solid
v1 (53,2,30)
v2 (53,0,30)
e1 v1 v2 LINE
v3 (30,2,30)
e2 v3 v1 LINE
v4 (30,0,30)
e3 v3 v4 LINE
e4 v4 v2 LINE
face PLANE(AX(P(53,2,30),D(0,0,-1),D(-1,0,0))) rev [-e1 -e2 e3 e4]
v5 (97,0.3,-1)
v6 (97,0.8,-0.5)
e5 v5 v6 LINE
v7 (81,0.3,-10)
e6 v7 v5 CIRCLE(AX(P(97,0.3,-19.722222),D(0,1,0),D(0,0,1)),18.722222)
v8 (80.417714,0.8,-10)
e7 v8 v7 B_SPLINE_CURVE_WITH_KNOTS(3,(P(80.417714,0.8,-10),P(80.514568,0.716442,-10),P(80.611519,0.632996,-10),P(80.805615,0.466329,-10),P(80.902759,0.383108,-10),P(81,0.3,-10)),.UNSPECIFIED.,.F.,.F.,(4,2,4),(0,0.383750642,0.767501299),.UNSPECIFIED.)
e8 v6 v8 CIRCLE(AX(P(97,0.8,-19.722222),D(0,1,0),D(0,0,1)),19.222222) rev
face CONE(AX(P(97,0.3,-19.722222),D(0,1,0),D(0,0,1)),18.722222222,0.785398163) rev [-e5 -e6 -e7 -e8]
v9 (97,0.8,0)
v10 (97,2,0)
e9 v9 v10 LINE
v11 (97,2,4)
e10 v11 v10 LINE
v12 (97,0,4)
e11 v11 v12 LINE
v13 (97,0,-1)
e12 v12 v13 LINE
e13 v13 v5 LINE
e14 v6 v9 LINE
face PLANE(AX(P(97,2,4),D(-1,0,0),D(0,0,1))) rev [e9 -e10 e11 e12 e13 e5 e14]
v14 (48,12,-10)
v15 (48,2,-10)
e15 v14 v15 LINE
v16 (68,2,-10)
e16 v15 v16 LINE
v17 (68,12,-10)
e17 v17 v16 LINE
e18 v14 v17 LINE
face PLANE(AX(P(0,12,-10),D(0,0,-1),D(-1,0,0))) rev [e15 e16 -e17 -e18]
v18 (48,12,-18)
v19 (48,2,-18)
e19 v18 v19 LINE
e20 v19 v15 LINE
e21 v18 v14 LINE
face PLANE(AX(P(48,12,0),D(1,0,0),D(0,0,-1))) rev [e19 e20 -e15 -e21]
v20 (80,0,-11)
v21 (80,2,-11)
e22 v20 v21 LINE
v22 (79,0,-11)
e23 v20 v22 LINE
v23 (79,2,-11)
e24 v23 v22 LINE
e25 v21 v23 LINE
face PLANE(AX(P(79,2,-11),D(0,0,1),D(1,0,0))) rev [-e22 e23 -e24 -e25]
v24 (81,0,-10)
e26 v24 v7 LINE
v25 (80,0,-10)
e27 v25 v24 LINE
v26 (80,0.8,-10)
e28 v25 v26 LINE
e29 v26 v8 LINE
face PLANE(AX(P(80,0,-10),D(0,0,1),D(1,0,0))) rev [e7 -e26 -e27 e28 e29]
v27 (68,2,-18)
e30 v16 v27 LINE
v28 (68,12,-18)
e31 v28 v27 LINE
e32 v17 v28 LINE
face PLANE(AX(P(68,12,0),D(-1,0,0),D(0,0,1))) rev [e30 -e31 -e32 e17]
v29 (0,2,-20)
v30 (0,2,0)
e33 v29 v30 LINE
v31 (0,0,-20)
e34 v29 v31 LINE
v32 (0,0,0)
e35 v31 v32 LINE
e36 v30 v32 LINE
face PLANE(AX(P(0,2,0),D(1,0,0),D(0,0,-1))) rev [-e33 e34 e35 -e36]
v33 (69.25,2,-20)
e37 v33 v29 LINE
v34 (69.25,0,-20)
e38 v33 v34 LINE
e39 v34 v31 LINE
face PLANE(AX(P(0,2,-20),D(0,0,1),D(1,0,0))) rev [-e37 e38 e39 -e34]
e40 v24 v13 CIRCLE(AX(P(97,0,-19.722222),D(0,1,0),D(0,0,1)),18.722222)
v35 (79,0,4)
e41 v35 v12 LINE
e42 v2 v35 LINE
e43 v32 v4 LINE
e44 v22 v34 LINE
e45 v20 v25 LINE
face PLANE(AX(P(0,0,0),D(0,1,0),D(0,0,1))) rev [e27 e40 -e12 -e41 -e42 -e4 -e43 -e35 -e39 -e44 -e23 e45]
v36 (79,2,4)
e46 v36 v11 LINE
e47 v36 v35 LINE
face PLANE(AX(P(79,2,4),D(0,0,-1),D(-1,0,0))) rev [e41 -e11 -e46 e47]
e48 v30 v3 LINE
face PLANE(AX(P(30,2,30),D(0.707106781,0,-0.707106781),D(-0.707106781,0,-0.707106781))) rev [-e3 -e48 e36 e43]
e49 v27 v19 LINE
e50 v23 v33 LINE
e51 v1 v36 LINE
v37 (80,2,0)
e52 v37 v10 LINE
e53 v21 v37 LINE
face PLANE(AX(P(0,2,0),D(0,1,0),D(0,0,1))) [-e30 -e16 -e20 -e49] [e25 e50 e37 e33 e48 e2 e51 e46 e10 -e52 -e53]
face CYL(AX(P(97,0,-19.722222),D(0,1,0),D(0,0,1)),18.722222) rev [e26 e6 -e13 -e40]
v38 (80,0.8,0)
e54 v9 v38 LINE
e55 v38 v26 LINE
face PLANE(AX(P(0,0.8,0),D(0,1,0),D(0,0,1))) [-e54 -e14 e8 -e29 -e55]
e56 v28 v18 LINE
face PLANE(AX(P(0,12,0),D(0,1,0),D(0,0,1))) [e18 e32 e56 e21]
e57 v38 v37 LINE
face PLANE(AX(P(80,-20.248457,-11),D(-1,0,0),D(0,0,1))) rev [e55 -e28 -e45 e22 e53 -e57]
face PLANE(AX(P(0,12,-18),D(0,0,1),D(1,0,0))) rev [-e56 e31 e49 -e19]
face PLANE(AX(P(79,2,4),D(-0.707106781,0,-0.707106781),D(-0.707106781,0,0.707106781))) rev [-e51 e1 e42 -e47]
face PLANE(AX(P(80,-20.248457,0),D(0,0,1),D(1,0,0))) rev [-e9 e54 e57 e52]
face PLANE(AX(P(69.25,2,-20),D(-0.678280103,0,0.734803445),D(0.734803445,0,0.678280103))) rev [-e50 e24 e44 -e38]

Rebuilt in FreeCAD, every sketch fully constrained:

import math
import FreeCAD as App
import Part
import Sketcher

V = App.Vector
Q = App.Units.Quantity


def edges_at(feature, points):
    """Names of the edges that pass closest to the given points."""
    edges = feature.Shape.Edges
    near = lambda p: min(range(len(edges)), key=lambda i: edges[i].distToShape(Part.Vertex(*p))[0])
    return sorted({f"Edge{near(p) + 1}" for p in points})

doc = App.newDocument("Part")
params = doc.addObject("Spreadsheet::Sheet", "Params")
for row, (alias, value) in enumerate([
    ("sketch1_width", "23 mm"),
    ("sketch1_width2", "18 mm"),
    ("sketch1_height", "20 mm"),
    ("sketch1_height2", "15 mm"),
    ("sketch1_width3", "69.25 mm"),
    ("pad1_length", "2 mm"),
    ("sketch2_width", "17 mm"),
    ("sketch2_height", "11 mm"),
    ("pocket1_length", "1.2 mm"),
    ("sketch3_width", "1 mm"),
    ("sketch3_width2", "17 mm"),
    ("sketch3_height", "10 mm"),
    ("sketch4_width", "20 mm"),
    ("sketch4_height", "8 mm"),
    ("pad2_length", "10 mm"),
    ("chamfer_size", "0.5 mm"),
], start=1):
    params.set(f"A{row}", alias)
    params.set(f"B{row}", "=" + value)
    params.setAlias(f"B{row}", alias)

body = doc.addObject("PartDesign::Body", "Body")

# Sketch on XZ plane
sketch1 = body.newObject("Sketcher::SketchObject", "Sketch")
sketch1.AttachmentSupport = (doc.getObject("XZ_Plane"), [""])
sketch1.MapMode = "FlatFace"
sketch1.addGeometry([
    Part.LineSegment(V(0, -20, 0), V(0, 0, 0)),  # 0
    Part.LineSegment(V(0, 0, 0), V(30, 30, 0)),  # 1
    Part.LineSegment(V(30, 30, 0), V(53, 30, 0)),  # 2
    Part.LineSegment(V(53, 30, 0), V(79, 4, 0)),  # 3
    Part.LineSegment(V(79, 4, 0), V(97, 4, 0)),  # 4
    Part.LineSegment(V(97, 4, 0), V(97, -11, 0)),  # 5
    Part.LineSegment(V(97, -11, 0), V(79, -11, 0)),  # 6
    Part.LineSegment(V(79, -11, 0), V(69.25, -20, 0)),  # 7
    Part.LineSegment(V(69.25, -20, 0), V(0, -20, 0)),  # 8
], False)
sketch1.addConstraint([
    Sketcher.Constraint("Coincident", 0, 2, 1, 1),
    Sketcher.Constraint("Coincident", 1, 2, 2, 1),
    Sketcher.Constraint("Coincident", 2, 2, 3, 1),
    Sketcher.Constraint("Coincident", 3, 2, 4, 1),
    Sketcher.Constraint("Coincident", 4, 2, 5, 1),
    Sketcher.Constraint("Coincident", 5, 2, 6, 1),
    Sketcher.Constraint("Coincident", 6, 2, 7, 1),
    Sketcher.Constraint("Coincident", 7, 2, 8, 1),
    Sketcher.Constraint("Coincident", 8, 2, 0, 1),
    Sketcher.Constraint("Vertical", 0),
    Sketcher.Constraint("Horizontal", 2),
    Sketcher.Constraint("Horizontal", 4),
    Sketcher.Constraint("Vertical", 5),
    Sketcher.Constraint("Horizontal", 6),
    Sketcher.Constraint("Horizontal", 8),
    Sketcher.Constraint("Coincident", 0, 2, -1, 1),
    Sketcher.Constraint("Perpendicular", 1, 3),
    Sketcher.Constraint("Vertical", 3, 2, 6, 2),
    Sketcher.Constraint("DistanceX", 2, 1, 2, 2, Q("23 mm")),
    Sketcher.Constraint("DistanceX", 4, 1, 4, 2, Q("18 mm")),
    Sketcher.Constraint("DistanceY", 0, 1, 0, 2, Q("20 mm")),
    Sketcher.Constraint("DistanceY", 5, 2, 5, 1, Q("15 mm")),
    Sketcher.Constraint("Angle", 1, Q("45 deg")),
    Sketcher.Constraint("DistanceX", -1, 1, 1, 2, Q("30 mm")),
    Sketcher.Constraint("DistanceX", -1, 1, 3, 2, Q("79 mm")),
    Sketcher.Constraint("DistanceX", 8, 2, 8, 1, Q("69.25 mm")),
])
sketch1.setExpression("Constraints[18]", "Params.sketch1_width")
sketch1.setExpression("Constraints[19]", "Params.sketch1_width2")
sketch1.setExpression("Constraints[20]", "Params.sketch1_height")
sketch1.setExpression("Constraints[21]", "Params.sketch1_height2")
sketch1.setExpression("Constraints[25]", "Params.sketch1_width3")
pad1 = body.newObject("PartDesign::Pad", "Pad")
pad1.Profile = sketch1
pad1.setExpression("Length", "Params.pad1_length")
pad1.Reversed = True

# Sketch on XZ plane
sketch2 = body.newObject("Sketcher::SketchObject", "Sketch001")
sketch2.AttachmentSupport = (doc.getObject("XZ_Plane"), [""])
sketch2.MapMode = "FlatFace"
sketch2.AttachmentOffset = App.Placement(V(0, 0, -2), App.Rotation())
sketch2.addGeometry([
    Part.LineSegment(V(80, -11, 0), V(80, 0, 0)),
    Part.LineSegment(V(80, 0, 0), V(97, 0, 0)),
    Part.LineSegment(V(97, 0, 0), V(97, -11, 0)),
    Part.LineSegment(V(97, -11, 0), V(80, -11, 0)),
], False)
sketch2.addConstraint([
    Sketcher.Constraint("Coincident", 0, 2, 1, 1),
    Sketcher.Constraint("Coincident", 1, 2, 2, 1),
    Sketcher.Constraint("Coincident", 2, 2, 3, 1),
    Sketcher.Constraint("Coincident", 3, 2, 0, 1),
    Sketcher.Constraint("Vertical", 0),
    Sketcher.Constraint("Horizontal", 1),
    Sketcher.Constraint("Vertical", 2),
    Sketcher.Constraint("Horizontal", 3),
    Sketcher.Constraint("PointOnObject", 0, 2, -1),
    Sketcher.Constraint("DistanceX", 1, 1, 1, 2, Q("17 mm")),
    Sketcher.Constraint("DistanceY", 0, 1, 0, 2, Q("11 mm")),
    Sketcher.Constraint("DistanceX", -1, 1, 0, 2, Q("80 mm")),
])
sketch2.setExpression("Constraints[9]", "Params.sketch2_width")
sketch2.setExpression("Constraints[10]", "Params.sketch2_height")
pocket1 = body.newObject("PartDesign::Pocket", "Pocket")
pocket1.Profile = sketch2
pocket1.setExpression("Length", "Params.pocket1_length")
pocket1.Reversed = True

# Sketch on XZ plane
sketch3 = body.newObject("Sketcher::SketchObject", "Sketch002")
sketch3.AttachmentSupport = (doc.getObject("XZ_Plane"), [""])
sketch3.MapMode = "FlatFace"
sketch3.AttachmentOffset = App.Placement(V(0, 0, -0.8), App.Rotation())
sketch3.addGeometry([
    Part.LineSegment(V(80, -11, 0), V(80, -10, 0)),  # 0
    Part.LineSegment(V(80, -10, 0), V(81, -10, 0)),  # 1
    Part.ArcOfCircle(Part.Circle(V(97, -19.722222, 0), V(0, 0, 1), 18.722222), math.radians(90), math.radians(148.715507)),  # 2
    Part.LineSegment(V(97, -1, 0), V(97, -11, 0)),  # 3
    Part.LineSegment(V(97, -11, 0), V(80, -11, 0)),  # 4
], False)
sketch3.addConstraint([
    Sketcher.Constraint("Coincident", 0, 2, 1, 1),
    Sketcher.Constraint("Coincident", 1, 2, 2, 2),
    Sketcher.Constraint("Coincident", 2, 1, 3, 1),
    Sketcher.Constraint("Coincident", 3, 2, 4, 1),
    Sketcher.Constraint("Coincident", 4, 2, 0, 1),
    Sketcher.Constraint("Vertical", 0),
    Sketcher.Constraint("Horizontal", 1),
    Sketcher.Constraint("Vertical", 3),
    Sketcher.Constraint("Horizontal", 4),
    Sketcher.Constraint("Equal", 1, 0),
    Sketcher.Constraint("DistanceX", 1, 1, 1, 2, Q("1 mm")),
    Sketcher.Constraint("DistanceX", 4, 2, 4, 1, Q("17 mm")),
    Sketcher.Constraint("DistanceY", 3, 2, 3, 1, Q("10 mm")),
    Sketcher.Constraint("DistanceX", -1, 1, 2, 3, Q("97 mm")),
    Sketcher.Constraint("DistanceX", -1, 1, 0, 2, Q("80 mm")),
    Sketcher.Constraint("DistanceY", 0, 2, -1, 1, Q("10 mm")),
])
sketch3.setExpression("Constraints[10]", "Params.sketch3_width")
sketch3.setExpression("Constraints[11]", "Params.sketch3_width2")
sketch3.setExpression("Constraints[12]", "Params.sketch3_height")
pocket2 = body.newObject("PartDesign::Pocket", "Pocket001")
pocket2.Profile = sketch3
pocket2.Type = "ThroughAll"
pocket2.Reversed = True

# Sketch on XZ plane
sketch4 = body.newObject("Sketcher::SketchObject", "Sketch003")
sketch4.AttachmentSupport = (doc.getObject("XZ_Plane"), [""])
sketch4.MapMode = "FlatFace"
sketch4.AttachmentOffset = App.Placement(V(0, 0, -2), App.Rotation())
sketch4.addGeometry([
    Part.LineSegment(V(48, -18, 0), V(48, -10, 0)),
    Part.LineSegment(V(48, -10, 0), V(68, -10, 0)),
    Part.LineSegment(V(68, -10, 0), V(68, -18, 0)),
    Part.LineSegment(V(68, -18, 0), V(48, -18, 0)),
], False)
sketch4.addConstraint([
    Sketcher.Constraint("Coincident", 0, 2, 1, 1),
    Sketcher.Constraint("Coincident", 1, 2, 2, 1),
    Sketcher.Constraint("Coincident", 2, 2, 3, 1),
    Sketcher.Constraint("Coincident", 3, 2, 0, 1),
    Sketcher.Constraint("Vertical", 0),
    Sketcher.Constraint("Horizontal", 1),
    Sketcher.Constraint("Vertical", 2),
    Sketcher.Constraint("Horizontal", 3),
    Sketcher.Constraint("DistanceX", 1, 1, 1, 2, Q("20 mm")),
    Sketcher.Constraint("DistanceY", 0, 1, 0, 2, Q("8 mm")),
    Sketcher.Constraint("DistanceX", -1, 1, 0, 2, Q("48 mm")),
    Sketcher.Constraint("DistanceY", 0, 2, -1, 1, Q("10 mm")),
])
sketch4.setExpression("Constraints[8]", "Params.sketch4_width")
sketch4.setExpression("Constraints[9]", "Params.sketch4_height")
pad2 = body.newObject("PartDesign::Pad", "Pad001")
pad2.Profile = sketch4
pad2.setExpression("Length", "Params.pad2_length")
pad2.Reversed = True
doc.recompute()

chamfer = body.newObject("PartDesign::Chamfer", "Chamfer")
chamfer.Base = (pad2, edges_at(pad2, [(87.821, 0.8, -3.404)]))
chamfer.setExpression("Size", "Params.chamfer_size")

doc.recompute()
